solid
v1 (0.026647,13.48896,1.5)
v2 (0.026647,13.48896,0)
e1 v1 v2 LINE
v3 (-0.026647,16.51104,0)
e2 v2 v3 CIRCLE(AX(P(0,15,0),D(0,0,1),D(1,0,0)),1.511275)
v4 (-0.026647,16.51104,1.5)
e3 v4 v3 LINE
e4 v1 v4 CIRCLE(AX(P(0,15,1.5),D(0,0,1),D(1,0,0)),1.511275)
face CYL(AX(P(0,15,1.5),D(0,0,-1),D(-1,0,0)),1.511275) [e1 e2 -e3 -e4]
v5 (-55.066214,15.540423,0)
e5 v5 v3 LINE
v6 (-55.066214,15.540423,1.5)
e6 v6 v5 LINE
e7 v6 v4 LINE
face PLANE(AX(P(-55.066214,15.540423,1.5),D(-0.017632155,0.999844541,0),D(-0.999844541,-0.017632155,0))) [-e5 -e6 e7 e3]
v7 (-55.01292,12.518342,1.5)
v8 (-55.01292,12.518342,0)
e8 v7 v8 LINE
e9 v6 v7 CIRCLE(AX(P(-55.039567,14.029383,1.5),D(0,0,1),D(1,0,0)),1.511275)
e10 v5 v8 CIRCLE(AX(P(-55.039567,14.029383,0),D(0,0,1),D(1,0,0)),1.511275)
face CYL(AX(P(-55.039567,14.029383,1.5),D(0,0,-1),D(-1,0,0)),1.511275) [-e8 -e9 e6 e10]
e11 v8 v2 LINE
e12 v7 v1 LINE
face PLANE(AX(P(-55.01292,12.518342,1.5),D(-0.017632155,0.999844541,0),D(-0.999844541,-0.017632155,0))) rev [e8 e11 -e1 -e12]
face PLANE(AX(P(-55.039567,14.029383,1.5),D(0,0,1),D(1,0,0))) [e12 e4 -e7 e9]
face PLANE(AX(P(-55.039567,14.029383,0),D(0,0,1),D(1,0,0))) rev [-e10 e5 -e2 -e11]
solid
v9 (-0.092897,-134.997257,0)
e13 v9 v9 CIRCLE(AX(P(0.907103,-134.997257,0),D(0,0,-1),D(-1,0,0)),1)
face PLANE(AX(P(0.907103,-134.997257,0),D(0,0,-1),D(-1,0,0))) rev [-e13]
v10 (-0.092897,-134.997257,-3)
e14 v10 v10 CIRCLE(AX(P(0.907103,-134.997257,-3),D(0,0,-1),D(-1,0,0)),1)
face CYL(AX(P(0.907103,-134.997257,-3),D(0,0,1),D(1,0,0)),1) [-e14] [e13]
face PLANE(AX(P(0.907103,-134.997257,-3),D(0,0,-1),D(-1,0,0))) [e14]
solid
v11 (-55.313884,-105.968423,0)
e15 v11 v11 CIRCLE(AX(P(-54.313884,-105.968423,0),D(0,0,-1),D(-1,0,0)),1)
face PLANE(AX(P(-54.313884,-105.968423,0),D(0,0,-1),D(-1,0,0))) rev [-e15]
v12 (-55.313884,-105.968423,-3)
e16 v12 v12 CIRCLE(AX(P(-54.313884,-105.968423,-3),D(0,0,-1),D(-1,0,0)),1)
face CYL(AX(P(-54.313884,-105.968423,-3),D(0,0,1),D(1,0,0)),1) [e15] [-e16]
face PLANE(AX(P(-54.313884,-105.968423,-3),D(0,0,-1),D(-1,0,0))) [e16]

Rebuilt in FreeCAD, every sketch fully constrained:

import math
import FreeCAD as App
import Part
import Sketcher

V = App.Vector

doc = App.newDocument("Part")
params = doc.addObject("Spreadsheet::Sheet", "Params")
for row, (alias, value) in enumerate([
    ("pad1_length", "1.5 mm"),
    ("sketch2_diameter", "2 mm"),
    ("pad2_length", "3 mm"),
    ("sketch3_diameter", "2 mm"),
    ("pad3_length", "3 mm"),
], start=1):
    params.set(f"A{row}", alias)
    params.set(f"B{row}", "=" + value)
    params.setAlias(f"B{row}", alias)

body = doc.addObject("PartDesign::Body", "Body")

sketch1 = body.newObject("Sketcher::SketchObject", "Sketch")
sketch1.AttachmentSupport = (doc.getObject("XY_Plane"), [""])
sketch1.MapMode = "FlatFace"
sketch1.addGeometry([
    Part.LineSegment(V(0, 16.5, 0), V(-55.1, 15.5, 0)),
    Part.ArcOfCircle(Part.Circle(V(-55, 14, 0), V(0, 0, 1), 1.5), math.radians(91), math.radians(271)),
    Part.LineSegment(V(-55, 12.5, 0), V(0, 13.5, 0)),
    Part.ArcOfCircle(Part.Circle(V(0, 15, 0), V(0, 0, 1), 1.5), math.radians(-89), math.radians(91)),
], False)
sketch1.addConstraint([
    Sketcher.Constraint("Tangent", 0, 2, 1, 1),
    Sketcher.Constraint("Tangent", 1, 2, 2, 1),
    Sketcher.Constraint("Tangent", 2, 2, 3, 1),
    Sketcher.Constraint("Tangent", 3, 2, 0, 1),
    Sketcher.Constraint("Equal", 1, 3),
    Sketcher.Constraint("PointOnObject", 3, 3, -2),
    Sketcher.Constraint("DistanceY", -1, 1, 3, 3, 15.0),
    Sketcher.Constraint("Radius", 1, 1.511275),
    Sketcher.Constraint("DistanceX", 1, 2, -1, 1, 55.01292),
    Sketcher.Constraint("DistanceX", 0, 2, 2, 2, 55.092861),
])
pad1 = body.newObject("PartDesign::Pad", "Pad")
pad1.Profile = sketch1
pad1.setExpression("Length", "Params.pad1_length")
body2 = doc.addObject("PartDesign::Body", "Body001")

sketch2 = body2.newObject("Sketcher::SketchObject", "Sketch001")
sketch2.AttachmentSupport = (doc.getObject("XY_Plane001"), [""])
sketch2.MapMode = "FlatFace"
sketch2.addGeometry(Part.Circle(V(-54.3, -106, 0), V(0, 0, 1), 1), False)
sketch2.addConstraint([
    Sketcher.Constraint("Diameter", 0, 2.0),
    Sketcher.Constraint("DistanceX", 0, 3, -1, 1, 54.313884),
    Sketcher.Constraint("DistanceY", 0, 3, -1, 1, 105.968423),
])
sketch2.setExpression("Constraints[0]", "Params.sketch2_diameter")
pad2 = body2.newObject("PartDesign::Pad", "Pad001")
pad2.Profile = sketch2
pad2.setExpression("Length", "Params.pad2_length")
pad2.Reversed = True
body3 = doc.addObject("PartDesign::Body", "Body002")

sketch3 = body3.newObject("Sketcher::SketchObject", "Sketch002")
sketch3.AttachmentSupport = (doc.getObject("XY_Plane002"), [""])
sketch3.MapMode = "FlatFace"
sketch3.addGeometry(Part.Circle(V(0.9, -135, 0), V(0, 0, 1), 1), False)
sketch3.addConstraint([
    Sketcher.Constraint("Diameter", 0, 2.0),
    Sketcher.Constraint("DistanceX", -1, 1, 0, 3, 0.907103),
    Sketcher.Constraint("DistanceY", 0, 3, -1, 1, 134.997257),
])
sketch3.setExpression("Constraints[0]", "Params.sketch3_diameter")
pad3 = body3.newObject("PartDesign::Pad", "Pad002")
pad3.Profile = sketch3
pad3.setExpression("Length", "Params.pad3_length")
pad3.Reversed = True

doc.recompute()
